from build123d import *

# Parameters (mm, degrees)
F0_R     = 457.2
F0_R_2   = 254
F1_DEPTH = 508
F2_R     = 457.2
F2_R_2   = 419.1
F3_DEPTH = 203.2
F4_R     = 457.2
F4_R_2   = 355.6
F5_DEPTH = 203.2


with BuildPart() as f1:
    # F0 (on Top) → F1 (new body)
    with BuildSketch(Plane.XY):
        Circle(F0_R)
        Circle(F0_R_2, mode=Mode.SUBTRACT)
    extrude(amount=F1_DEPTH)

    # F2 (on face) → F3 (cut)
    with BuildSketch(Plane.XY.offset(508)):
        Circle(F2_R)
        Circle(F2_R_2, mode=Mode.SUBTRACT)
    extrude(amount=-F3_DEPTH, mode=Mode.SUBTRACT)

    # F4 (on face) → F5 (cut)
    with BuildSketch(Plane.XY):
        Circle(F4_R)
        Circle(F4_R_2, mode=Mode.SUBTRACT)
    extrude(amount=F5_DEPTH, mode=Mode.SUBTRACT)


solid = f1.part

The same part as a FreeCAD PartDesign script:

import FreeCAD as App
import Part
import Sketcher
Q = App.Units.Quantity

doc = App.newDocument("Part")
body = doc.addObject("PartDesign::Body", "Body")

# Sketch on XY plane
sketch1 = doc.addObject("Sketcher::SketchObject", "Sketch")
body.addObject(sketch1)
sketch1.AttachmentSupport = (doc.XY_Plane, [""])
sketch1.MapMode = "FlatFace"
sketch1.addGeometry([
    Part.Circle(App.Vector(0, 0, 0), App.Vector(0, 0, 1), 457),
    Part.Circle(App.Vector(0, 0, 0), App.Vector(0, 0, 1), 254),
], False)
sketch1.addConstraint([
    Sketcher.Constraint("Coincident", 0, 3, -1, 1),
    Sketcher.Constraint("Coincident", 1, 3, -1, 1),
    Sketcher.Constraint("Diameter", 0, Q("36 in")),
    Sketcher.Constraint("Diameter", 1, Q("20 in")),
])
pad1 = doc.addObject("PartDesign::Pad", "Pad")
body.addObject(pad1)
pad1.Profile = sketch1
pad1.Length = Q("20 in")

# Sketch on XY plane
sketch2 = doc.addObject("Sketcher::SketchObject", "Sketch001")
body.addObject(sketch2)
sketch2.AttachmentSupport = (doc.XY_Plane, [""])
sketch2.MapMode = "FlatFace"
sketch2.AttachmentOffset = App.Placement(App.Vector(0, 0, 20 * 25.4), App.Rotation())
sketch2.addGeometry([
    Part.Circle(App.Vector(0, 0, 0), App.Vector(0, 0, 1), 457),
    Part.Circle(App.Vector(0, 0, 0), App.Vector(0, 0, 1), 419),
], False)
sketch2.addConstraint([
    Sketcher.Constraint("Coincident", 0, 3, -1, 1),
    Sketcher.Constraint("Coincident", 1, 3, -1, 1),
    Sketcher.Constraint("Diameter", 0, Q("36 in")),
    Sketcher.Constraint("Diameter", 1, Q("33 in")),
])
pocket1 = doc.addObject("PartDesign::Pocket", "Pocket")
body.addObject(pocket1)
pocket1.Profile = sketch2
pocket1.Length = Q("8 in")

# Sketch on XY plane
sketch3 = doc.addObject("Sketcher::SketchObject", "Sketch002")
body.addObject(sketch3)
sketch3.AttachmentSupport = (doc.XY_Plane, [""])
sketch3.MapMode = "FlatFace"
sketch3.addGeometry([
    Part.Circle(App.Vector(0, 0, 0), App.Vector(0, 0, 1), 457),
    Part.Circle(App.Vector(0, 0, 0), App.Vector(0, 0, 1), 356),
], False)
sketch3.addConstraint([
    Sketcher.Constraint("Coincident", 0, 3, -1, 1),
    Sketcher.Constraint("Coincident", 1, 3, -1, 1),
    Sketcher.Constraint("Diameter", 0, Q("36 in")),
    Sketcher.Constraint("Diameter", 1, Q("28 in")),
])
pocket2 = doc.addObject("PartDesign::Pocket", "Pocket001")
body.addObject(pocket2)
pocket2.Profile = sketch3
pocket2.Length = Q("8 in")
pocket2.Reversed = True

doc.recompute()
